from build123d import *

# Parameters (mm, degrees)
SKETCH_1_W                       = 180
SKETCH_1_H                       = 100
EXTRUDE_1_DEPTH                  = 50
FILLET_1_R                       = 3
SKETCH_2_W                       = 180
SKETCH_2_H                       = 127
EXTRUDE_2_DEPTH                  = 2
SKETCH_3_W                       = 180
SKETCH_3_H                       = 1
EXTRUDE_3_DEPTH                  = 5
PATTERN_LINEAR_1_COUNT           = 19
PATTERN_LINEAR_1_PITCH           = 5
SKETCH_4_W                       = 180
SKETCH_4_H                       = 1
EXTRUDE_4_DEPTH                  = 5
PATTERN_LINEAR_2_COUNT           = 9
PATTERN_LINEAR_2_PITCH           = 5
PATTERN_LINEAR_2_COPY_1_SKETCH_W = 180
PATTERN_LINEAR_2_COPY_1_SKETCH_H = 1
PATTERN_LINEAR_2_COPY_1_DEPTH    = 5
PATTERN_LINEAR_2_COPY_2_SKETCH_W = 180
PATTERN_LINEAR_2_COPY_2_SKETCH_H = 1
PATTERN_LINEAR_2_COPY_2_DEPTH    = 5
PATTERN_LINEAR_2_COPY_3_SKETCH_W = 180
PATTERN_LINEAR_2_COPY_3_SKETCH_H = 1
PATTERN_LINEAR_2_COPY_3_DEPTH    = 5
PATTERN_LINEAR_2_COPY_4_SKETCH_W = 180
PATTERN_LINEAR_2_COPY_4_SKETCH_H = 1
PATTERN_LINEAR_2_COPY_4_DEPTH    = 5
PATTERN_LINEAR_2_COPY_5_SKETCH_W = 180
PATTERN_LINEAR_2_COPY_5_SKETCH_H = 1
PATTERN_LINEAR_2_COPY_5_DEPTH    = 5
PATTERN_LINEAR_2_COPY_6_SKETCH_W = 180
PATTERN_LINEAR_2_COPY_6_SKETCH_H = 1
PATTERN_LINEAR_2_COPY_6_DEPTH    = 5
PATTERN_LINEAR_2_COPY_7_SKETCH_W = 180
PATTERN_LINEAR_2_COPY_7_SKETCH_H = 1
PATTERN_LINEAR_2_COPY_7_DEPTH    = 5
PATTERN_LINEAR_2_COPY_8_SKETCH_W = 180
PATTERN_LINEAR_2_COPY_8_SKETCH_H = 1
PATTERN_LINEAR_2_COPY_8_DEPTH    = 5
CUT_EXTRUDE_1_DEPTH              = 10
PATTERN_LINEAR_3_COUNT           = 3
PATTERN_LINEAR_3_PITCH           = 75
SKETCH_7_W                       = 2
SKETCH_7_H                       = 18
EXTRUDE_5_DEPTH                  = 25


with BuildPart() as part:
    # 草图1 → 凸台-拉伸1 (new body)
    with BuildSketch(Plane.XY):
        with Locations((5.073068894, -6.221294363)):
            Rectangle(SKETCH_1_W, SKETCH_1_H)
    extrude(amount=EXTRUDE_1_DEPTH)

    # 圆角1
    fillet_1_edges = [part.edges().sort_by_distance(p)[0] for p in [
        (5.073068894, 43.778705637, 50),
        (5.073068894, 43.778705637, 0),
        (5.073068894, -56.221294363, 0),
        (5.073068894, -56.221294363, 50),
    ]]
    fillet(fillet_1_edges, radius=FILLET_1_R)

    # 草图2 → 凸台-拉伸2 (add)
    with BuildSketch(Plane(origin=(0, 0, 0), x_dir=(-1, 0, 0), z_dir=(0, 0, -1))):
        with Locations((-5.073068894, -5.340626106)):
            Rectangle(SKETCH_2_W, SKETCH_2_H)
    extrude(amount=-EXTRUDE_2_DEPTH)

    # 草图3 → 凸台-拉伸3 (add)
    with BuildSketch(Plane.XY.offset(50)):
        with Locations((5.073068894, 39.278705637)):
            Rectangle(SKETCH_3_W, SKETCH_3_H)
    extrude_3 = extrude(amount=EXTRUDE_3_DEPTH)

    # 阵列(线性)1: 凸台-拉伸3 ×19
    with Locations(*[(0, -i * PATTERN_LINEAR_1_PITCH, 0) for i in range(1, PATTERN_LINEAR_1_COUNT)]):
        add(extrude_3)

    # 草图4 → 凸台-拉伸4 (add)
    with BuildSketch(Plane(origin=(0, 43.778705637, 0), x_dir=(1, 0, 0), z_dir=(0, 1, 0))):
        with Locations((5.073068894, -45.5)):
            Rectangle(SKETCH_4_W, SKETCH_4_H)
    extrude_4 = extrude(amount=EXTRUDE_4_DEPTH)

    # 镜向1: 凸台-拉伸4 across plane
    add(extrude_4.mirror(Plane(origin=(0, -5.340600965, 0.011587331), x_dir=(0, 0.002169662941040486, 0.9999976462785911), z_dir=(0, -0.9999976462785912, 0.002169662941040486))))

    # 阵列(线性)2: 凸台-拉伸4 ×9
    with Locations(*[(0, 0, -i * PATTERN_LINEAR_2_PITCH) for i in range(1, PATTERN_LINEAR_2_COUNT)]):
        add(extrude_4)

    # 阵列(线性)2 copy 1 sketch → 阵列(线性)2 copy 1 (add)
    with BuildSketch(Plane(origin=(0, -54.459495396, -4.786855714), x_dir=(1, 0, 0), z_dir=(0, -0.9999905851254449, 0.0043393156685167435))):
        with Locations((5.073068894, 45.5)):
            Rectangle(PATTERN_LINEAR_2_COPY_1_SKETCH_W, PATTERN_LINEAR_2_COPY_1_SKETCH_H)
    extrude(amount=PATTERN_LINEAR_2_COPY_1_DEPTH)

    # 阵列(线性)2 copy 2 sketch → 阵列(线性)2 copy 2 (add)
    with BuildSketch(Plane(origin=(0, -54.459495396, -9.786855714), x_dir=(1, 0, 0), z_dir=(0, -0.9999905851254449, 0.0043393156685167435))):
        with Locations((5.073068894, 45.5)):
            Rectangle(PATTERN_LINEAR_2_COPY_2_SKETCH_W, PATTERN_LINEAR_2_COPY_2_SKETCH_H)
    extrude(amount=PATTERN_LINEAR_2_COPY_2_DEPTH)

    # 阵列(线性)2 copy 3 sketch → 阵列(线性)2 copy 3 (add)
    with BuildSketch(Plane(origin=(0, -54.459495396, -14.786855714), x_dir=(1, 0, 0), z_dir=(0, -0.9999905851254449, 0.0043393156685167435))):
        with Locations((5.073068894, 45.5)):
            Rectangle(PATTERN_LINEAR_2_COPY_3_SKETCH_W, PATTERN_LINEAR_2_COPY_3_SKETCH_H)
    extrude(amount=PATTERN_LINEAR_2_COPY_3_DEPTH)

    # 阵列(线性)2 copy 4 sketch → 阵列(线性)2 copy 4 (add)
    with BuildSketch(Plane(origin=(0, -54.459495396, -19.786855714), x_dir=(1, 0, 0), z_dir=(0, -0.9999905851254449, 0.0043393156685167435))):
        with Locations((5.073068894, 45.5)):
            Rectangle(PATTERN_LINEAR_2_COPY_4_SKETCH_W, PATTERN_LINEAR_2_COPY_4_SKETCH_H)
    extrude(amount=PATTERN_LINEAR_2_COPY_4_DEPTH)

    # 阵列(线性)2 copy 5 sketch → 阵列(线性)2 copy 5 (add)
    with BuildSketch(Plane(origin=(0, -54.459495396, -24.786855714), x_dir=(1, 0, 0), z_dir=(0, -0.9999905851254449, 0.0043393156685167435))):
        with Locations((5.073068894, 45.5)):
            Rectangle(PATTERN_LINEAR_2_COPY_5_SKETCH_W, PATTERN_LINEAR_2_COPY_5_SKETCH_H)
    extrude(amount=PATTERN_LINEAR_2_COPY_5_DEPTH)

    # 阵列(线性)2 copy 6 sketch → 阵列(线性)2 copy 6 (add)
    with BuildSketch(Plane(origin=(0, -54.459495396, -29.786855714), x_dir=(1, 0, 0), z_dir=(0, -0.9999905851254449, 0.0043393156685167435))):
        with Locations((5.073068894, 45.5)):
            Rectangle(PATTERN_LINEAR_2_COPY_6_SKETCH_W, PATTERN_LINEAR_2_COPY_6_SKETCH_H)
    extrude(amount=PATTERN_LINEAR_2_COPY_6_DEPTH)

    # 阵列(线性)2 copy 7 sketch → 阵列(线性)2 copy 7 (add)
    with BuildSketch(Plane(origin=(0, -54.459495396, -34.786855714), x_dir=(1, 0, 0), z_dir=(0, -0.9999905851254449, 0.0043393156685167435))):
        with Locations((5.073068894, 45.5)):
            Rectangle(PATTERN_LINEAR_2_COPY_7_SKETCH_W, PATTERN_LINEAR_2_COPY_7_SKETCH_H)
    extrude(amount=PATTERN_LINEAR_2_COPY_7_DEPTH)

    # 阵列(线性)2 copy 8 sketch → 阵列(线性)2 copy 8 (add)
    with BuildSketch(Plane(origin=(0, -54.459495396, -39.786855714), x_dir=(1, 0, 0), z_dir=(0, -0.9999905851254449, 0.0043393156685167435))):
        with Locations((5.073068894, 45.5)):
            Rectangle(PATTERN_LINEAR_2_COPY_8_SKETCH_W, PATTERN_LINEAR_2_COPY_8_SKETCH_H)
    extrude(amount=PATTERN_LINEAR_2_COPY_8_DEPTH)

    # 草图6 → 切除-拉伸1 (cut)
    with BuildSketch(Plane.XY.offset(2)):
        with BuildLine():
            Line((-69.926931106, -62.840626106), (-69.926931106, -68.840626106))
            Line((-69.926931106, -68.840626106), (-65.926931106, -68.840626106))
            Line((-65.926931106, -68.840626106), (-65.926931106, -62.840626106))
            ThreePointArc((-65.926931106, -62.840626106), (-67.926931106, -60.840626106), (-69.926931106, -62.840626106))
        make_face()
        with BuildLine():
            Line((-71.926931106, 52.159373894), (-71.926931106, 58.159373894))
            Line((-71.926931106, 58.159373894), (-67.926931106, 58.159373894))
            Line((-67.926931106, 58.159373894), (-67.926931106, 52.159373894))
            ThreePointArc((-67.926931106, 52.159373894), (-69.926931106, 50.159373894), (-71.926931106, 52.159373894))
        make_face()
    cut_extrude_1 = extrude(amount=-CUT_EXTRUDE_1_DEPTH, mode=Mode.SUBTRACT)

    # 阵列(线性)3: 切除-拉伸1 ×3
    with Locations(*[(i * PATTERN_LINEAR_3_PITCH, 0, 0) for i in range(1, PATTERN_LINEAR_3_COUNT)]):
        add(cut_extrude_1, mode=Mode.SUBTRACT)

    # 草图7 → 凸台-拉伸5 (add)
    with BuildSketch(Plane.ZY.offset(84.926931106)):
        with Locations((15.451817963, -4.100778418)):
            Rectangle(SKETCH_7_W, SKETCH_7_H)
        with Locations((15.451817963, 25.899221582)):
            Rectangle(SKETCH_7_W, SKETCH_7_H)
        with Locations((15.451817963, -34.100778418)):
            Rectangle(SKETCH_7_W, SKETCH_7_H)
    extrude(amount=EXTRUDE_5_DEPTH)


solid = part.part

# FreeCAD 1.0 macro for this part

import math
import FreeCAD as App
import Part
import Sketcher
Q = App.Units.Quantity


def edges_at(feature, points):
    """Names of the edges that pass closest to the given points."""
    edges = feature.Shape.Edges
    near = lambda p: min(range(len(edges)), key=lambda i: edges[i].distToShape(Part.Vertex(*p))[0])
    return sorted({f"Edge{near(p) + 1}" for p in points})

doc = App.newDocument("Part")
body = doc.addObject("PartDesign::Body", "Body")

# Sketch on XY plane
sketch1 = body.newObject("Sketcher::SketchObject", "Sketch")
sketch1.AttachmentSupport = (doc.getObject("XY_Plane"), [""])
sketch1.MapMode = "FlatFace"
sketch1.addGeometry(Part.LineSegment(App.Vector(-84.926931, 43.778706, 0), App.Vector(-84.926931, -56.221294, 0)), False)
sketch1.addGeometry(Part.LineSegment(App.Vector(-84.926931, -56.221294, 0), App.Vector(95.073069, -56.221294, 0)), False)
sketch1.addGeometry(Part.LineSegment(App.Vector(95.073069, -56.221294, 0), App.Vector(95.073069, 43.778706, 0)), False)
sketch1.addGeometry(Part.LineSegment(App.Vector(95.073069, 43.778706, 0), App.Vector(-84.926931, 43.778706, 0)), False)
sketch1.addConstraint(Sketcher.Constraint("Coincident", 0, 2, 1, 1))
sketch1.addConstraint(Sketcher.Constraint("Coincident", 1, 2, 2, 1))
sketch1.addConstraint(Sketcher.Constraint("Coincident", 2, 2, 3, 1))
sketch1.addConstraint(Sketcher.Constraint("Coincident", 3, 2, 0, 1))
sketch1.addConstraint(Sketcher.Constraint("Vertical", 0))
sketch1.addConstraint(Sketcher.Constraint("Horizontal", 1))
sketch1.addConstraint(Sketcher.Constraint("Vertical", 2))
sketch1.addConstraint(Sketcher.Constraint("Horizontal", 3))
sketch1.addConstraint(Sketcher.Constraint("DistanceX", 1, 1, 1, 2, Q("180 mm")))
sketch1.addConstraint(Sketcher.Constraint("DistanceY", 0, 2, 0, 1, Q("100 mm")))
sketch1.addConstraint(Sketcher.Constraint("DistanceX", 0, 2, -1, 1, Q("84.926931 mm")))
sketch1.addConstraint(Sketcher.Constraint("DistanceY", 0, 2, -1, 1, Q("56.221294 mm")))
pad1 = body.newObject("PartDesign::Pad", "Pad")
pad1.Profile = sketch1
pad1.Length = 50
doc.recompute()

fillet = body.newObject("PartDesign::Fillet", "Fillet")
fillet.Base = (pad1, edges_at(pad1, [
    (5.073, 43.779, 50),
    (5.073, 43.779, 0),
    (5.073, -56.221, 0),
    (5.073, -56.221, 50),
]))
fillet.Radius = 3

# Sketch on XY plane
sketch2 = body.newObject("Sketcher::SketchObject", "Sketch001")
sketch2.AttachmentSupport = (doc.getObject("XY_Plane"), [""])
sketch2.MapMode = "FlatFace"
sketch2.addGeometry(Part.LineSegment(App.Vector(95.073069, 58.159374, 0), App.Vector(95.073069, -68.840626, 0)), False)
sketch2.addGeometry(Part.LineSegment(App.Vector(95.073069, -68.840626, 0), App.Vector(-84.926931, -68.840626, 0)), False)
sketch2.addGeometry(Part.LineSegment(App.Vector(-84.926931, -68.840626, 0), App.Vector(-84.926931, 58.159374, 0)), False)
sketch2.addGeometry(Part.LineSegment(App.Vector(-84.926931, 58.159374, 0), App.Vector(95.073069, 58.159374, 0)), False)
sketch2.addConstraint(Sketcher.Constraint("Coincident", 0, 2, 1, 1))
sketch2.addConstraint(Sketcher.Constraint("Coincident", 1, 2, 2, 1))
sketch2.addConstraint(Sketcher.Constraint("Coincident", 2, 2, 3, 1))
sketch2.addConstraint(Sketcher.Constraint("Coincident", 3, 2, 0, 1))
sketch2.addConstraint(Sketcher.Constraint("Vertical", 0))
sketch2.addConstraint(Sketcher.Constraint("Horizontal", 1))
sketch2.addConstraint(Sketcher.Constraint("Vertical", 2))
sketch2.addConstraint(Sketcher.Constraint("Horizontal", 3))
sketch2.addConstraint(Sketcher.Constraint("DistanceX", 1, 2, 1, 1, Q("180 mm")))
sketch2.addConstraint(Sketcher.Constraint("DistanceY", 0, 2, 0, 1, Q("127 mm")))
sketch2.addConstraint(Sketcher.Constraint("DistanceX", -1, 1, 0, 2, Q("95.073069 mm")))
sketch2.addConstraint(Sketcher.Constraint("DistanceY", 0, 2, -1, 1, Q("68.840626 mm")))
pad2 = body.newObject("PartDesign::Pad", "Pad001")
pad2.Profile = sketch2
pad2.Length = 2

# Sketch on XY plane
sketch3 = body.newObject("Sketcher::SketchObject", "Sketch002")
sketch3.AttachmentSupport = (doc.getObject("XY_Plane"), [""])
sketch3.MapMode = "FlatFace"
sketch3.AttachmentOffset = App.Placement(App.Vector(0, 0, 50), App.Rotation())
sketch3.addGeometry(Part.LineSegment(App.Vector(-84.926931, 39.778706, 0), App.Vector(-84.926931, 38.778706, 0)), False)
sketch3.addGeometry(Part.LineSegment(App.Vector(-84.926931, 38.778706, 0), App.Vector(95.073069, 38.778706, 0)), False)
sketch3.addGeometry(Part.LineSegment(App.Vector(95.073069, 38.778706, 0), App.Vector(95.073069, 39.778706, 0)), False)
sketch3.addGeometry(Part.LineSegment(App.Vector(95.073069, 39.778706, 0), App.Vector(-84.926931, 39.778706, 0)), False)
sketch3.addConstraint(Sketcher.Constraint("Coincident", 0, 2, 1, 1))
sketch3.addConstraint(Sketcher.Constraint("Coincident", 1, 2, 2, 1))
sketch3.addConstraint(Sketcher.Constraint("Coincident", 2, 2, 3, 1))
sketch3.addConstraint(Sketcher.Constraint("Coincident", 3, 2, 0, 1))
sketch3.addConstraint(Sketcher.Constraint("Vertical", 0))
sketch3.addConstraint(Sketcher.Constraint("Horizontal", 1))
sketch3.addConstraint(Sketcher.Constraint("Vertical", 2))
sketch3.addConstraint(Sketcher.Constraint("Horizontal", 3))
sketch3.addConstraint(Sketcher.Constraint("DistanceX", 1, 1, 1, 2, Q("180 mm")))
sketch3.addConstraint(Sketcher.Constraint("DistanceY", 0, 2, 0, 1, Q("1 mm")))
sketch3.addConstraint(Sketcher.Constraint("DistanceX", 0, 2, -1, 1, Q("84.926931 mm")))
sketch3.addConstraint(Sketcher.Constraint("DistanceY", -1, 1, 0, 2, Q("38.778706 mm")))
pad3 = body.newObject("PartDesign::Pad", "Pad002")
pad3.Profile = sketch3
pad3.Length = 5
doc.recompute()

linearpattern = body.newObject("PartDesign::LinearPattern", "LinearPattern")
linearpattern.Originals = [pad3]
linearpattern.Direction = (doc.getObject("Y_Axis"), [""])
linearpattern.Mode = "offset"
linearpattern.Offset = 5
linearpattern.Occurrences = 19
linearpattern.Reversed = True
body.Tip = linearpattern

# Sketch on XZ plane
sketch4 = body.newObject("Sketcher::SketchObject", "Sketch003")
sketch4.AttachmentSupport = (doc.getObject("XZ_Plane"), [""])
sketch4.MapMode = "FlatFace"
sketch4.AttachmentOffset = App.Placement(App.Vector(0, 0, -43.778706), App.Rotation())
sketch4.addGeometry(Part.LineSegment(App.Vector(-84.926931, 45, 0), App.Vector(-84.926931, 46, 0)), False)
sketch4.addGeometry(Part.LineSegment(App.Vector(-84.926931, 46, 0), App.Vector(95.073069, 46, 0)), False)
sketch4.addGeometry(Part.LineSegment(App.Vector(95.073069, 46, 0), App.Vector(95.073069, 45, 0)), False)
sketch4.addGeometry(Part.LineSegment(App.Vector(95.073069, 45, 0), App.Vector(-84.926931, 45, 0)), False)
sketch4.addConstraint(Sketcher.Constraint("Coincident", 0, 2, 1, 1))
sketch4.addConstraint(Sketcher.Constraint("Coincident", 1, 2, 2, 1))
sketch4.addConstraint(Sketcher.Constraint("Coincident", 2, 2, 3, 1))
sketch4.addConstraint(Sketcher.Constraint("Coincident", 3, 2, 0, 1))
sketch4.addConstraint(Sketcher.Constraint("Vertical", 0))
sketch4.addConstraint(Sketcher.Constraint("Horizontal", 1))
sketch4.addConstraint(Sketcher.Constraint("Vertical", 2))
sketch4.addConstraint(Sketcher.Constraint("Horizontal", 3))
sketch4.addConstraint(Sketcher.Constraint("DistanceX", 1, 1, 1, 2, Q("180 mm")))
sketch4.addConstraint(Sketcher.Constraint("DistanceY", 0, 1, 0, 2, Q("1 mm")))
sketch4.addConstraint(Sketcher.Constraint("DistanceY", -1, 1, 0, 2, Q("46 mm")))
sketch4.addConstraint(Sketcher.Constraint("DistanceX", 0, 2, -1, 1, Q("84.926931 mm")))
pad4 = body.newObject("PartDesign::Pad", "Pad003")
pad4.Profile = sketch4
pad4.Length = 5
pad4.Reversed = True
doc.recompute()

datumplane = body.newObject("PartDesign::Plane", "DatumPlane")
datumplane.Placement = App.Placement(App.Vector(0, -5.340601, 0.011587), App.Rotation(App.Vector(0, 0.002169663, 0.999997646), App.Vector(-1, 0, 0), App.Vector(0, -0.999997646, 0.002169663), "ZXY"))
mirrored = body.newObject("PartDesign::Mirrored", "Mirrored")
mirrored.Originals = [pad4]
mirrored.MirrorPlane = (datumplane, [""])
body.Tip = mirrored
doc.recompute()

linearpattern2 = body.newObject("PartDesign::LinearPattern", "LinearPattern001")
linearpattern2.Originals = [pad4]
linearpattern2.Direction = (doc.getObject("Z_Axis"), [""])
linearpattern2.Mode = "offset"
linearpattern2.Offset = 5
linearpattern2.Occurrences = 9
linearpattern2.Reversed = True
body.Tip = linearpattern2

# Sketch on an angled plane
sketch5 = body.newObject("Sketcher::SketchObject", "Sketch004")
sketch5.Placement = App.Placement(App.Vector(0, -54.459495, -4.786856), App.Rotation(App.Vector(1, 0, 0), App.Vector(0, 0.004339316, 0.999990585), App.Vector(0, -0.999990585, 0.004339316), "ZXY"))
sketch5.addGeometry(Part.LineSegment(App.Vector(-84.926931, 46, 0), App.Vector(-84.926931, 45, 0)), False)
sketch5.addGeometry(Part.LineSegment(App.Vector(-84.926931, 45, 0), App.Vector(95.073069, 45, 0)), False)
sketch5.addGeometry(Part.LineSegment(App.Vector(95.073069, 45, 0), App.Vector(95.073069, 46, 0)), False)
sketch5.addGeometry(Part.LineSegment(App.Vector(95.073069, 46, 0), App.Vector(-84.926931, 46, 0)), False)
sketch5.addConstraint(Sketcher.Constraint("Coincident", 0, 2, 1, 1))
sketch5.addConstraint(Sketcher.Constraint("Coincident", 1, 2, 2, 1))
sketch5.addConstraint(Sketcher.Constraint("Coincident", 2, 2, 3, 1))
sketch5.addConstraint(Sketcher.Constraint("Coincident", 3, 2, 0, 1))
sketch5.addConstraint(Sketcher.Constraint("Vertical", 0))
sketch5.addConstraint(Sketcher.Constraint("Horizontal", 1))
sketch5.addConstraint(Sketcher.Constraint("Vertical", 2))
sketch5.addConstraint(Sketcher.Constraint("Horizontal", 3))
sketch5.addConstraint(Sketcher.Constraint("DistanceX", 1, 1, 1, 2, Q("180 mm")))
sketch5.addConstraint(Sketcher.Constraint("DistanceY", 0, 2, 0, 1, Q("1 mm")))
sketch5.addConstraint(Sketcher.Constraint("DistanceY", -1, 1, 0, 2, Q("45 mm")))
sketch5.addConstraint(Sketcher.Constraint("DistanceX", 0, 2, -1, 1, Q("84.926931 mm")))
pad5 = body.newObject("PartDesign::Pad", "Pad004")
pad5.Profile = sketch5
pad5.Length = 5

# Sketch on an angled plane
sketch6 = body.newObject("Sketcher::SketchObject", "Sketch005")
sketch6.Placement = App.Placement(App.Vector(0, -54.459495, -9.786856), App.Rotation(App.Vector(1, 0, 0), App.Vector(0, 0.004339316, 0.999990585), App.Vector(0, -0.999990585, 0.004339316), "ZXY"))
sketch6.addGeometry(Part.LineSegment(App.Vector(-84.926931, 46, 0), App.Vector(-84.926931, 45, 0)), False)
sketch6.addGeometry(Part.LineSegment(App.Vector(-84.926931, 45, 0), App.Vector(95.073069, 45, 0)), False)
sketch6.addGeometry(Part.LineSegment(App.Vector(95.073069, 45, 0), App.Vector(95.073069, 46, 0)), False)
sketch6.addGeometry(Part.LineSegment(App.Vector(95.073069, 46, 0), App.Vector(-84.926931, 46, 0)), False)
sketch6.addConstraint(Sketcher.Constraint("Coincident", 0, 2, 1, 1))
sketch6.addConstraint(Sketcher.Constraint("Coincident", 1, 2, 2, 1))
sketch6.addConstraint(Sketcher.Constraint("Coincident", 2, 2, 3, 1))
sketch6.addConstraint(Sketcher.Constraint("Coincident", 3, 2, 0, 1))
sketch6.addConstraint(Sketcher.Constraint("Vertical", 0))
sketch6.addConstraint(Sketcher.Constraint("Horizontal", 1))
sketch6.addConstraint(Sketcher.Constraint("Vertical", 2))
sketch6.addConstraint(Sketcher.Constraint("Horizontal", 3))
sketch6.addConstraint(Sketcher.Constraint("DistanceX", 1, 1, 1, 2, Q("180 mm")))
sketch6.addConstraint(Sketcher.Constraint("DistanceY", 0, 2, 0, 1, Q("1 mm")))
sketch6.addConstraint(Sketcher.Constraint("DistanceY", -1, 1, 0, 2, Q("45 mm")))
sketch6.addConstraint(Sketcher.Constraint("DistanceX", 0, 2, -1, 1, Q("84.926931 mm")))
pad6 = body.newObject("PartDesign::Pad", "Pad005")
pad6.Profile = sketch6
pad6.Length = 5

# Sketch on an angled plane
sketch7 = body.newObject("Sketcher::SketchObject", "Sketch006")
sketch7.Placement = App.Placement(App.Vector(0, -54.459495, -14.786856), App.Rotation(App.Vector(1, 0, 0), App.Vector(0, 0.004339316, 0.999990585), App.Vector(0, -0.999990585, 0.004339316), "ZXY"))
sketch7.addGeometry(Part.LineSegment(App.Vector(-84.926931, 46, 0), App.Vector(-84.926931, 45, 0)), False)
sketch7.addGeometry(Part.LineSegment(App.Vector(-84.926931, 45, 0), App.Vector(95.073069, 45, 0)), False)
sketch7.addGeometry(Part.LineSegment(App.Vector(95.073069, 45, 0), App.Vector(95.073069, 46, 0)), False)
sketch7.addGeometry(Part.LineSegment(App.Vector(95.073069, 46, 0), App.Vector(-84.926931, 46, 0)), False)
sketch7.addConstraint(Sketcher.Constraint("Coincident", 0, 2, 1, 1))
sketch7.addConstraint(Sketcher.Constraint("Coincident", 1, 2, 2, 1))
sketch7.addConstraint(Sketcher.Constraint("Coincident", 2, 2, 3, 1))
sketch7.addConstraint(Sketcher.Constraint("Coincident", 3, 2, 0, 1))
sketch7.addConstraint(Sketcher.Constraint("Vertical", 0))
sketch7.addConstraint(Sketcher.Constraint("Horizontal", 1))
sketch7.addConstraint(Sketcher.Constraint("Vertical", 2))
sketch7.addConstraint(Sketcher.Constraint("Horizontal", 3))
sketch7.addConstraint(Sketcher.Constraint("DistanceX", 1, 1, 1, 2, Q("180 mm")))
sketch7.addConstraint(Sketcher.Constraint("DistanceY", 0, 2, 0, 1, Q("1 mm")))
sketch7.addConstraint(Sketcher.Constraint("DistanceY", -1, 1, 0, 2, Q("45 mm")))
sketch7.addConstraint(Sketcher.Constraint("DistanceX", 0, 2, -1, 1, Q("84.926931 mm")))
pad7 = body.newObject("PartDesign::Pad", "Pad006")
pad7.Profile = sketch7
pad7.Length = 5

# Sketch on an angled plane
sketch8 = body.newObject("Sketcher::SketchObject", "Sketch007")
sketch8.Placement = App.Placement(App.Vector(0, -54.459495, -19.786856), App.Rotation(App.Vector(1, 0, 0), App.Vector(0, 0.004339316, 0.999990585), App.Vector(0, -0.999990585, 0.004339316), "ZXY"))
sketch8.addGeometry(Part.LineSegment(App.Vector(-84.926931, 46, 0), App.Vector(-84.926931, 45, 0)), False)
sketch8.addGeometry(Part.LineSegment(App.Vector(-84.926931, 45, 0), App.Vector(95.073069, 45, 0)), False)
sketch8.addGeometry(Part.LineSegment(App.Vector(95.073069, 45, 0), App.Vector(95.073069, 46, 0)), False)
sketch8.addGeometry(Part.LineSegment(App.Vector(95.073069, 46, 0), App.Vector(-84.926931, 46, 0)), False)
sketch8.addConstraint(Sketcher.Constraint("Coincident", 0, 2, 1, 1))
sketch8.addConstraint(Sketcher.Constraint("Coincident", 1, 2, 2, 1))
sketch8.addConstraint(Sketcher.Constraint("Coincident", 2, 2, 3, 1))
sketch8.addConstraint(Sketcher.Constraint("Coincident", 3, 2, 0, 1))
sketch8.addConstraint(Sketcher.Constraint("Vertical", 0))
sketch8.addConstraint(Sketcher.Constraint("Horizontal", 1))
sketch8.addConstraint(Sketcher.Constraint("Vertical", 2))
sketch8.addConstraint(Sketcher.Constraint("Horizontal", 3))
sketch8.addConstraint(Sketcher.Constraint("DistanceX", 1, 1, 1, 2, Q("180 mm")))
sketch8.addConstraint(Sketcher.Constraint("DistanceY", 0, 2, 0, 1, Q("1 mm")))
sketch8.addConstraint(Sketcher.Constraint("DistanceY", -1, 1, 0, 2, Q("45 mm")))
sketch8.addConstraint(Sketcher.Constraint("DistanceX", 0, 2, -1, 1, Q("84.926931 mm")))
pad8 = body.newObject("PartDesign::Pad", "Pad007")
pad8.Profile = sketch8
pad8.Length = 5

# Sketch on an angled plane
sketch9 = body.newObject("Sketcher::SketchObject", "Sketch008")
sketch9.Placement = App.Placement(App.Vector(0, -54.459495, -24.786856), App.Rotation(App.Vector(1, 0, 0), App.Vector(0, 0.004339316, 0.999990585), App.Vector(0, -0.999990585, 0.004339316), "ZXY"))
sketch9.addGeometry(Part.LineSegment(App.Vector(-84.926931, 46, 0), App.Vector(-84.926931, 45, 0)), False)
sketch9.addGeometry(Part.LineSegment(App.Vector(-84.926931, 45, 0), App.Vector(95.073069, 45, 0)), False)
sketch9.addGeometry(Part.LineSegment(App.Vector(95.073069, 45, 0), App.Vector(95.073069, 46, 0)), False)
sketch9.addGeometry(Part.LineSegment(App.Vector(95.073069, 46, 0), App.Vector(-84.926931, 46, 0)), False)
sketch9.addConstraint(Sketcher.Constraint("Coincident", 0, 2, 1, 1))
sketch9.addConstraint(Sketcher.Constraint("Coincident", 1, 2, 2, 1))
sketch9.addConstraint(Sketcher.Constraint("Coincident", 2, 2, 3, 1))
sketch9.addConstraint(Sketcher.Constraint("Coincident", 3, 2, 0, 1))
sketch9.addConstraint(Sketcher.Constraint("Vertical", 0))
sketch9.addConstraint(Sketcher.Constraint("Horizontal", 1))
sketch9.addConstraint(Sketcher.Constraint("Vertical", 2))
sketch9.addConstraint(Sketcher.Constraint("Horizontal", 3))
sketch9.addConstraint(Sketcher.Constraint("DistanceX", 1, 1, 1, 2, Q("180 mm")))
sketch9.addConstraint(Sketcher.Constraint("DistanceY", 0, 2, 0, 1, Q("1 mm")))
sketch9.addConstraint(Sketcher.Constraint("DistanceY", -1, 1, 0, 2, Q("45 mm")))
sketch9.addConstraint(Sketcher.Constraint("DistanceX", 0, 2, -1, 1, Q("84.926931 mm")))
pad9 = body.newObject("PartDesign::Pad", "Pad008")
pad9.Profile = sketch9
pad9.Length = 5

# Sketch on an angled plane
sketch10 = body.newObject("Sketcher::SketchObject", "Sketch009")
sketch10.Placement = App.Placement(App.Vector(0, -54.459495, -29.786856), App.Rotation(App.Vector(1, 0, 0), App.Vector(0, 0.004339316, 0.999990585), App.Vector(0, -0.999990585, 0.004339316), "ZXY"))
sketch10.addGeometry(Part.LineSegment(App.Vector(-84.926931, 46, 0), App.Vector(-84.926931, 45, 0)), False)
sketch10.addGeometry(Part.LineSegment(App.Vector(-84.926931, 45, 0), App.Vector(95.073069, 45, 0)), False)
sketch10.addGeometry(Part.LineSegment(App.Vector(95.073069, 45, 0), App.Vector(95.073069, 46, 0)), False)
sketch10.addGeometry(Part.LineSegment(App.Vector(95.073069, 46, 0), App.Vector(-84.926931, 46, 0)), False)
sketch10.addConstraint(Sketcher.Constraint("Coincident", 0, 2, 1, 1))
sketch10.addConstraint(Sketcher.Constraint("Coincident", 1, 2, 2, 1))
sketch10.addConstraint(Sketcher.Constraint("Coincident", 2, 2, 3, 1))
sketch10.addConstraint(Sketcher.Constraint("Coincident", 3, 2, 0, 1))
sketch10.addConstraint(Sketcher.Constraint("Vertical", 0))
sketch10.addConstraint(Sketcher.Constraint("Horizontal", 1))
sketch10.addConstraint(Sketcher.Constraint("Vertical", 2))
sketch10.addConstraint(Sketcher.Constraint("Horizontal", 3))
sketch10.addConstraint(Sketcher.Constraint("DistanceX", 1, 1, 1, 2, Q("180 mm")))
sketch10.addConstraint(Sketcher.Constraint("DistanceY", 0, 2, 0, 1, Q("1 mm")))
sketch10.addConstraint(Sketcher.Constraint("DistanceY", -1, 1, 0, 2, Q("45 mm")))
sketch10.addConstraint(Sketcher.Constraint("DistanceX", 0, 2, -1, 1, Q("84.926931 mm")))
pad10 = body.newObject("PartDesign::Pad", "Pad009")
pad10.Profile = sketch10
pad10.Length = 5

# Sketch on an angled plane
sketch11 = body.newObject("Sketcher::SketchObject", "Sketch010")
sketch11.Placement = App.Placement(App.Vector(0, -54.459495, -34.786856), App.Rotation(App.Vector(1, 0, 0), App.Vector(0, 0.004339316, 0.999990585), App.Vector(0, -0.999990585, 0.004339316), "ZXY"))
sketch11.addGeometry(Part.LineSegment(App.Vector(-84.926931, 46, 0), App.Vector(-84.926931, 45, 0)), False)
sketch11.addGeometry(Part.LineSegment(App.Vector(-84.926931, 45, 0), App.Vector(95.073069, 45, 0)), False)
sketch11.addGeometry(Part.LineSegment(App.Vector(95.073069, 45, 0), App.Vector(95.073069, 46, 0)), False)
sketch11.addGeometry(Part.LineSegment(App.Vector(95.073069, 46, 0), App.Vector(-84.926931, 46, 0)), False)
sketch11.addConstraint(Sketcher.Constraint("Coincident", 0, 2, 1, 1))
sketch11.addConstraint(Sketcher.Constraint("Coincident", 1, 2, 2, 1))
sketch11.addConstraint(Sketcher.Constraint("Coincident", 2, 2, 3, 1))
sketch11.addConstraint(Sketcher.Constraint("Coincident", 3, 2, 0, 1))
sketch11.addConstraint(Sketcher.Constraint("Vertical", 0))
sketch11.addConstraint(Sketcher.Constraint("Horizontal", 1))
sketch11.addConstraint(Sketcher.Constraint("Vertical", 2))
sketch11.addConstraint(Sketcher.Constraint("Horizontal", 3))
sketch11.addConstraint(Sketcher.Constraint("DistanceX", 1, 1, 1, 2, Q("180 mm")))
sketch11.addConstraint(Sketcher.Constraint("DistanceY", 0, 2, 0, 1, Q("1 mm")))
sketch11.addConstraint(Sketcher.Constraint("DistanceY", -1, 1, 0, 2, Q("45 mm")))
sketch11.addConstraint(Sketcher.Constraint("DistanceX", 0, 2, -1, 1, Q("84.926931 mm")))
pad11 = body.newObject("PartDesign::Pad", "Pad010")
pad11.Profile = sketch11
pad11.Length = 5

# Sketch on an angled plane
sketch12 = body.newObject("Sketcher::SketchObject", "Sketch011")
sketch12.Placement = App.Placement(App.Vector(0, -54.459495, -39.786856), App.Rotation(App.Vector(1, 0, 0), App.Vector(0, 0.004339316, 0.999990585), App.Vector(0, -0.999990585, 0.004339316), "ZXY"))
sketch12.addGeometry(Part.LineSegment(App.Vector(-84.926931, 46, 0), App.Vector(-84.926931, 45, 0)), False)
sketch12.addGeometry(Part.LineSegment(App.Vector(-84.926931, 45, 0), App.Vector(95.073069, 45, 0)), False)
sketch12.addGeometry(Part.LineSegment(App.Vector(95.073069, 45, 0), App.Vector(95.073069, 46, 0)), False)
sketch12.addGeometry(Part.LineSegment(App.Vector(95.073069, 46, 0), App.Vector(-84.926931, 46, 0)), False)
sketch12.addConstraint(Sketcher.Constraint("Coincident", 0, 2, 1, 1))
sketch12.addConstraint(Sketcher.Constraint("Coincident", 1, 2, 2, 1))
sketch12.addConstraint(Sketcher.Constraint("Coincident", 2, 2, 3, 1))
sketch12.addConstraint(Sketcher.Constraint("Coincident", 3, 2, 0, 1))
sketch12.addConstraint(Sketcher.Constraint("Vertical", 0))
sketch12.addConstraint(Sketcher.Constraint("Horizontal", 1))
sketch12.addConstraint(Sketcher.Constraint("Vertical", 2))
sketch12.addConstraint(Sketcher.Constraint("Horizontal", 3))
sketch12.addConstraint(Sketcher.Constraint("DistanceX", 1, 1, 1, 2, Q("180 mm")))
sketch12.addConstraint(Sketcher.Constraint("DistanceY", 0, 2, 0, 1, Q("1 mm")))
sketch12.addConstraint(Sketcher.Constraint("DistanceY", -1, 1, 0, 2, Q("45 mm")))
sketch12.addConstraint(Sketcher.Constraint("DistanceX", 0, 2, -1, 1, Q("84.926931 mm")))
pad12 = body.newObject("PartDesign::Pad", "Pad011")
pad12.Profile = sketch12
pad12.Length = 5

# Sketch on XY plane
sketch13 = body.newObject("Sketcher::SketchObject", "Sketch012")
sketch13.AttachmentSupport = (doc.getObject("XY_Plane"), [""])
sketch13.MapMode = "FlatFace"
sketch13.AttachmentOffset = App.Placement(App.Vector(0, 0, 2), App.Rotation())
sketch13.addGeometry(Part.LineSegment(App.Vector(-69.926931, -62.840626, 0), App.Vector(-69.926931, -68.840626, 0)), False)
sketch13.addGeometry(Part.LineSegment(App.Vector(-69.926931, -68.840626, 0), App.Vector(-65.926931, -68.840626, 0)), False)
sketch13.addGeometry(Part.LineSegment(App.Vector(-65.926931, -68.840626, 0), App.Vector(-65.926931, -62.840626, 0)), False)
sketch13.addGeometry(Part.ArcOfCircle(Part.Circle(App.Vector(-67.926931, -62.840626, 0), App.Vector(0, 0, 1), 2), math.radians(0), math.radians(180)), False)
sketch13.addGeometry(Part.LineSegment(App.Vector(-71.926931, 58.159374, 0), App.Vector(-71.926931, 52.159374, 0)), False)
sketch13.addGeometry(Part.ArcOfCircle(Part.Circle(App.Vector(-69.926931, 52.159374, 0), App.Vector(0, 0, 1), 2), math.radians(180), math.radians(360)), False)
sketch13.addGeometry(Part.LineSegment(App.Vector(-67.926931, 52.159374, 0), App.Vector(-67.926931, 58.159374, 0)), False)
sketch13.addGeometry(Part.LineSegment(App.Vector(-67.926931, 58.159374, 0), App.Vector(-71.926931, 58.159374, 0)), False)
sketch13.addConstraint(Sketcher.Constraint("Coincident", 0, 2, 1, 1))
sketch13.addConstraint(Sketcher.Constraint("Coincident", 1, 2, 2, 1))
sketch13.addConstraint(Sketcher.Constraint("Tangent", 2, 2, 3, 1))
sketch13.addConstraint(Sketcher.Constraint("Tangent", 3, 2, 0, 1))
sketch13.addConstraint(Sketcher.Constraint("Tangent", 4, 2, 5, 1))
sketch13.addConstraint(Sketcher.Constraint("Tangent", 5, 2, 6, 1))
sketch13.addConstraint(Sketcher.Constraint("Coincident", 6, 2, 7, 1))
sketch13.addConstraint(Sketcher.Constraint("Coincident", 7, 2, 4, 1))
sketch13.addConstraint(Sketcher.Constraint("Vertical", 0))
sketch13.addConstraint(Sketcher.Constraint("Horizontal", 1))
sketch13.addConstraint(Sketcher.Constraint("Vertical", 2))
sketch13.addConstraint(Sketcher.Constraint("Vertical", 4))
sketch13.addConstraint(Sketcher.Constraint("Vertical", 6))
sketch13.addConstraint(Sketcher.Constraint("Horizontal", 7))
sketch13.addConstraint(Sketcher.Constraint("Equal", 3, 5))
sketch13.addConstraint(Sketcher.Constraint("Vertical", 5, 3, 0, 2))
sketch13.addConstraint(Sketcher.Constraint("Equal", 2, 4))
sketch13.addConstraint(Sketcher.Constraint("Radius", 3, Q("2 mm")))
sketch13.addConstraint(Sketcher.Constraint("DistanceY", 0, 2, 0, 1, Q("6 mm")))
sketch13.addConstraint(Sketcher.Constraint("DistanceY", 3, 3, 5, 3, Q("115 mm")))
sketch13.addConstraint(Sketcher.Constraint("DistanceX", 3, 3, -1, 1, Q("67.926931 mm")))
sketch13.addConstraint(Sketcher.Constraint("DistanceY", 3, 3, -1, 1, Q("62.840626 mm")))
pocket1 = body.newObject("PartDesign::Pocket", "Pocket")
pocket1.Profile = sketch13
pocket1.Length = 10
doc.recompute()

linearpattern3 = body.newObject("PartDesign::LinearPattern", "LinearPattern002")
linearpattern3.Originals = [pocket1]
linearpattern3.Direction = (doc.getObject("X_Axis"), [""])
linearpattern3.Mode = "offset"
linearpattern3.Offset = 75
linearpattern3.Occurrences = 3
body.Tip = linearpattern3

# Sketch on YZ plane
sketch14 = body.newObject("Sketcher::SketchObject", "Sketch013")
sketch14.AttachmentSupport = (doc.getObject("YZ_Plane"), [""])
sketch14.MapMode = "FlatFace"
sketch14.AttachmentOffset = App.Placement(App.Vector(0, 0, -84.926931), App.Rotation())
sketch14.addGeometry(Part.LineSegment(App.Vector(4.899222, 14.451818, 0), App.Vector(-13.100778, 14.451818, 0)), False)
sketch14.addGeometry(Part.LineSegment(App.Vector(-13.100778, 14.451818, 0), App.Vector(-13.100778, 16.451818, 0)), False)
sketch14.addGeometry(Part.LineSegment(App.Vector(-13.100778, 16.451818, 0), App.Vector(4.899222, 16.451818, 0)), False)
sketch14.addGeometry(Part.LineSegment(App.Vector(4.899222, 16.451818, 0), App.Vector(4.899222, 14.451818, 0)), False)
sketch14.addGeometry(Part.LineSegment(App.Vector(34.899222, 14.451818, 0), App.Vector(16.899222, 14.451818, 0)), False)
sketch14.addGeometry(Part.LineSegment(App.Vector(16.899222, 14.451818, 0), App.Vector(16.899222, 16.451818, 0)), False)
sketch14.addGeometry(Part.LineSegment(App.Vector(16.899222, 16.451818, 0), App.Vector(34.899222, 16.451818, 0)), False)
sketch14.addGeometry(Part.LineSegment(App.Vector(34.899222, 16.451818, 0), App.Vector(34.899222, 14.451818, 0)), False)
sketch14.addGeometry(Part.LineSegment(App.Vector(-25.100778, 14.451818, 0), App.Vector(-43.100778, 14.451818, 0)), False)
sketch14.addGeometry(Part.LineSegment(App.Vector(-43.100778, 14.451818, 0), App.Vector(-43.100778, 16.451818, 0)), False)
sketch14.addGeometry(Part.LineSegment(App.Vector(-43.100778, 16.451818, 0), App.Vector(-25.100778, 16.451818, 0)), False)
sketch14.addGeometry(Part.LineSegment(App.Vector(-25.100778, 16.451818, 0), App.Vector(-25.100778, 14.451818, 0)), False)
sketch14.addConstraint(Sketcher.Constraint("Coincident", 0, 2, 1, 1))
sketch14.addConstraint(Sketcher.Constraint("Coincident", 1, 2, 2, 1))
sketch14.addConstraint(Sketcher.Constraint("Coincident", 2, 2, 3, 1))
sketch14.addConstraint(Sketcher.Constraint("Coincident", 3, 2, 0, 1))
sketch14.addConstraint(Sketcher.Constraint("Coincident", 4, 2, 5, 1))
sketch14.addConstraint(Sketcher.Constraint("Coincident", 5, 2, 6, 1))
sketch14.addConstraint(Sketcher.Constraint("Coincident", 6, 2, 7, 1))
sketch14.addConstraint(Sketcher.Constraint("Coincident", 7, 2, 4, 1))
sketch14.addConstraint(Sketcher.Constraint("Coincident", 8, 2, 9, 1))
sketch14.addConstraint(Sketcher.Constraint("Coincident", 9, 2, 10, 1))
sketch14.addConstraint(Sketcher.Constraint("Coincident", 10, 2, 11, 1))
sketch14.addConstraint(Sketcher.Constraint("Coincident", 11, 2, 8, 1))
sketch14.addConstraint(Sketcher.Constraint("Horizontal", 0))
sketch14.addConstraint(Sketcher.Constraint("Vertical", 1))
sketch14.addConstraint(Sketcher.Constraint("Horizontal", 2))
sketch14.addConstraint(Sketcher.Constraint("Vertical", 3))
sketch14.addConstraint(Sketcher.Constraint("Horizontal", 4))
sketch14.addConstraint(Sketcher.Constraint("Vertical", 5))
sketch14.addConstraint(Sketcher.Constraint("Horizontal", 6))
sketch14.addConstraint(Sketcher.Constraint("Vertical", 7))
sketch14.addConstraint(Sketcher.Constraint("Horizontal", 8))
sketch14.addConstraint(Sketcher.Constraint("Vertical", 9))
sketch14.addConstraint(Sketcher.Constraint("Horizontal", 10))
sketch14.addConstraint(Sketcher.Constraint("Vertical", 11))
sketch14.addConstraint(Sketcher.Constraint("Horizontal", 3, 2, 4, 2))
sketch14.addConstraint(Sketcher.Constraint("Horizontal", 2, 2, 5, 2))
sketch14.addConstraint(Sketcher.Constraint("Horizontal", 7, 2, 8, 2))
sketch14.addConstraint(Sketcher.Constraint("Horizontal", 6, 2, 9, 2))
sketch14.addConstraint(Sketcher.Constraint("Equal", 2, 4))
sketch14.addConstraint(Sketcher.Constraint("Equal", 6, 8))
sketch14.addConstraint(Sketcher.Constraint("DistanceX", 0, 2, 0, 1, Q("18 mm")))
sketch14.addConstraint(Sketcher.Constraint("DistanceY", 1, 1, 1, 2, Q("2 mm")))
sketch14.addConstraint(Sketcher.Constraint("DistanceX", 3, 2, 4, 2, Q("12 mm")))
sketch14.addConstraint(Sketcher.Constraint("DistanceX", 8, 2, 0, 2, Q("30 mm")))
sketch14.addConstraint(Sketcher.Constraint("DistanceX", 0, 2, -1, 1, Q("13.100778 mm")))
sketch14.addConstraint(Sketcher.Constraint("DistanceY", -1, 1, 0, 2, Q("14.451818 mm")))
pad13 = body.newObject("PartDesign::Pad", "Pad012")
pad13.Profile = sketch14
pad13.Length = 25
pad13.Reversed = True

doc.recompute()
